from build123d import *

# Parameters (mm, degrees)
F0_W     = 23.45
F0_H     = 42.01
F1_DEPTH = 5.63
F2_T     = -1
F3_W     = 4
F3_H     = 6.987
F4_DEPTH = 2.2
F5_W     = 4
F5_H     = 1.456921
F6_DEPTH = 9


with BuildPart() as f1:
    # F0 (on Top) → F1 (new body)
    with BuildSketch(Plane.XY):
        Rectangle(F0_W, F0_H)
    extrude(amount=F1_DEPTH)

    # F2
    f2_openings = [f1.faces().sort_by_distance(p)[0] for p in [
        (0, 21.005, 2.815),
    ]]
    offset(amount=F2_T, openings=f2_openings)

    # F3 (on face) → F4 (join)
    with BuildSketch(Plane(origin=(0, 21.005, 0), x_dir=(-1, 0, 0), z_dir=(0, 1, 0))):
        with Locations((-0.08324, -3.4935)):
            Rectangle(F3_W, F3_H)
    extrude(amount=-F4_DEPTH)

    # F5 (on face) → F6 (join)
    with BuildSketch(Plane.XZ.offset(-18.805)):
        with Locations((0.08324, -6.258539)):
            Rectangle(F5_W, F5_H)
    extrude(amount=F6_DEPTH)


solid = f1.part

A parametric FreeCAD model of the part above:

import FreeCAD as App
import Part
import Sketcher

V = App.Vector
Q = App.Units.Quantity


def faces_at(feature, points):
    """Names of the faces that lie closest to the given points."""
    faces = feature.Shape.Faces
    near = lambda p: min(range(len(faces)), key=lambda i: faces[i].distToShape(Part.Vertex(*p))[0])
    return sorted({f"Face{near(p) + 1}" for p in points})

doc = App.newDocument("Part")
params = doc.addObject("Spreadsheet::Sheet", "Params")
for row, (alias, value) in enumerate([
    ("sketch1_width", "23.45 mm"),
    ("sketch1_height", "42.01 mm"),
    ("pad1_length", "5.63 mm"),
    ("thickness_wall", "1 mm"),
    ("sketch2_width", "4 mm"),
    ("pad2_length", "2.2 mm"),
    ("sketch3_width", "4 mm"),
    ("pad3_length", "9 mm"),
], start=1):
    params.set(f"A{row}", alias)
    params.set(f"B{row}", "=" + value)
    params.setAlias(f"B{row}", alias)

body = doc.addObject("PartDesign::Body", "Body")

# Sketch on XY plane
sketch1 = doc.addObject("Sketcher::SketchObject", "Sketch")
body.addObject(sketch1)
sketch1.AttachmentSupport = (doc.XY_Plane, [""])
sketch1.MapMode = "FlatFace"
sketch1.addGeometry([
    Part.LineSegment(V(-12, 21, 0), V(-12, -21, 0)),
    Part.LineSegment(V(-12, -21, 0), V(12, -21, 0)),
    Part.LineSegment(V(12, -21, 0), V(12, 21, 0)),
    Part.LineSegment(V(12, 21, 0), V(-12, 21, 0)),
], False)
sketch1.addConstraint([
    Sketcher.Constraint("Coincident", 0, 2, 1, 1),
    Sketcher.Constraint("Coincident", 1, 2, 2, 1),
    Sketcher.Constraint("Coincident", 2, 2, 3, 1),
    Sketcher.Constraint("Coincident", 3, 2, 0, 1),
    Sketcher.Constraint("Vertical", 0),
    Sketcher.Constraint("Horizontal", 1),
    Sketcher.Constraint("Vertical", 2),
    Sketcher.Constraint("Horizontal", 3),
    Sketcher.Constraint("Symmetric", 0, 2, 2, 2, -1, 1),
    Sketcher.Constraint("DistanceX", 1, 1, 1, 2, Q("23.45 mm")),
    Sketcher.Constraint("DistanceY", 0, 2, 0, 1, Q("42.01 mm")),
])
sketch1.setExpression("Constraints[9]", "Params.sketch1_width")
sketch1.setExpression("Constraints[10]", "Params.sketch1_height")
pad1 = doc.addObject("PartDesign::Pad", "Pad")
body.addObject(pad1)
pad1.Profile = sketch1
pad1.setExpression("Length", "Params.pad1_length")
doc.recompute()

thickness = doc.addObject("PartDesign::Thickness", "Thickness")
body.addObject(thickness)
thickness.Base = (pad1, faces_at(pad1, [(0, 21.005, 2.815)]))
thickness.setExpression("Value", "Params.thickness_wall")
thickness.Reversed = True
thickness.Join = "Arc"

# Sketch on XZ plane
sketch2 = doc.addObject("Sketcher::SketchObject", "Sketch001")
body.addObject(sketch2)
sketch2.AttachmentSupport = (doc.XZ_Plane, [""])
sketch2.MapMode = "FlatFace"
sketch2.AttachmentOffset = App.Placement(V(0, 0, -21.005), App.Rotation())
sketch2.addGeometry([
    Part.LineSegment(V(2.1, 0, 0), V(2.1, -7, 0)),
    Part.LineSegment(V(2.1, -7, 0), V(-1.9, -7, 0)),
    Part.LineSegment(V(-1.9, -7, 0), V(-1.9, 0, 0)),
    Part.LineSegment(V(-1.9, 0, 0), V(2.1, 0, 0)),
], False)
sketch2.addConstraint([
    Sketcher.Constraint("Coincident", 0, 2, 1, 1),
    Sketcher.Constraint("Coincident", 1, 2, 2, 1),
    Sketcher.Constraint("Coincident", 2, 2, 3, 1),
    Sketcher.Constraint("Coincident", 3, 2, 0, 1),
    Sketcher.Constraint("Vertical", 0),
    Sketcher.Constraint("Horizontal", 1),
    Sketcher.Constraint("Vertical", 2),
    Sketcher.Constraint("Horizontal", 3),
    Sketcher.Constraint("PointOnObject", 2, 2, -1),
    Sketcher.Constraint("DistanceX", 1, 2, 1, 1, Q("4 mm")),
    Sketcher.Constraint("DistanceY", 0, 2, 0, 1, Q("6.987 mm")),
    Sketcher.Constraint("DistanceX", -1, 1, 0, 2, Q("2.08324 mm")),
])
sketch2.setExpression("Constraints[9]", "Params.sketch2_width")
pad2 = doc.addObject("PartDesign::Pad", "Pad001")
body.addObject(pad2)
pad2.Profile = sketch2
pad2.setExpression("Length", "Params.pad2_length")

# Sketch on XZ plane
sketch3 = doc.addObject("Sketcher::SketchObject", "Sketch002")
body.addObject(sketch3)
sketch3.AttachmentSupport = (doc.XZ_Plane, [""])
sketch3.MapMode = "FlatFace"
sketch3.AttachmentOffset = App.Placement(V(0, 0, -18.805), App.Rotation())
sketch3.addGeometry([
    Part.LineSegment(V(-1.9, -5.5, 0), V(-1.9, -7, 0)),
    Part.LineSegment(V(-1.9, -7, 0), V(2.1, -7, 0)),
    Part.LineSegment(V(2.1, -7, 0), V(2.1, -5.5, 0)),
    Part.LineSegment(V(2.1, -5.5, 0), V(-1.9, -5.5, 0)),
], False)
sketch3.addConstraint([
    Sketcher.Constraint("Coincident", 0, 2, 1, 1),
    Sketcher.Constraint("Coincident", 1, 2, 2, 1),
    Sketcher.Constraint("Coincident", 2, 2, 3, 1),
    Sketcher.Constraint("Coincident", 3, 2, 0, 1),
    Sketcher.Constraint("Vertical", 0),
    Sketcher.Constraint("Horizontal", 1),
    Sketcher.Constraint("Vertical", 2),
    Sketcher.Constraint("Horizontal", 3),
    Sketcher.Constraint("DistanceX", 1, 1, 1, 2, Q("4 mm")),
    Sketcher.Constraint("DistanceY", 0, 2, -1, 1, Q("6.986999 mm")),
    Sketcher.Constraint("DistanceY", 0, 2, 0, 1, Q("1.456921 mm")),
    Sketcher.Constraint("DistanceX", 0, 2, -1, 1, Q("1.91676 mm")),
])
sketch3.setExpression("Constraints[8]", "Params.sketch3_width")
pad3 = doc.addObject("PartDesign::Pad", "Pad002")
body.addObject(pad3)
pad3.Profile = sketch3
pad3.setExpression("Length", "Params.pad3_length")

doc.recompute()
